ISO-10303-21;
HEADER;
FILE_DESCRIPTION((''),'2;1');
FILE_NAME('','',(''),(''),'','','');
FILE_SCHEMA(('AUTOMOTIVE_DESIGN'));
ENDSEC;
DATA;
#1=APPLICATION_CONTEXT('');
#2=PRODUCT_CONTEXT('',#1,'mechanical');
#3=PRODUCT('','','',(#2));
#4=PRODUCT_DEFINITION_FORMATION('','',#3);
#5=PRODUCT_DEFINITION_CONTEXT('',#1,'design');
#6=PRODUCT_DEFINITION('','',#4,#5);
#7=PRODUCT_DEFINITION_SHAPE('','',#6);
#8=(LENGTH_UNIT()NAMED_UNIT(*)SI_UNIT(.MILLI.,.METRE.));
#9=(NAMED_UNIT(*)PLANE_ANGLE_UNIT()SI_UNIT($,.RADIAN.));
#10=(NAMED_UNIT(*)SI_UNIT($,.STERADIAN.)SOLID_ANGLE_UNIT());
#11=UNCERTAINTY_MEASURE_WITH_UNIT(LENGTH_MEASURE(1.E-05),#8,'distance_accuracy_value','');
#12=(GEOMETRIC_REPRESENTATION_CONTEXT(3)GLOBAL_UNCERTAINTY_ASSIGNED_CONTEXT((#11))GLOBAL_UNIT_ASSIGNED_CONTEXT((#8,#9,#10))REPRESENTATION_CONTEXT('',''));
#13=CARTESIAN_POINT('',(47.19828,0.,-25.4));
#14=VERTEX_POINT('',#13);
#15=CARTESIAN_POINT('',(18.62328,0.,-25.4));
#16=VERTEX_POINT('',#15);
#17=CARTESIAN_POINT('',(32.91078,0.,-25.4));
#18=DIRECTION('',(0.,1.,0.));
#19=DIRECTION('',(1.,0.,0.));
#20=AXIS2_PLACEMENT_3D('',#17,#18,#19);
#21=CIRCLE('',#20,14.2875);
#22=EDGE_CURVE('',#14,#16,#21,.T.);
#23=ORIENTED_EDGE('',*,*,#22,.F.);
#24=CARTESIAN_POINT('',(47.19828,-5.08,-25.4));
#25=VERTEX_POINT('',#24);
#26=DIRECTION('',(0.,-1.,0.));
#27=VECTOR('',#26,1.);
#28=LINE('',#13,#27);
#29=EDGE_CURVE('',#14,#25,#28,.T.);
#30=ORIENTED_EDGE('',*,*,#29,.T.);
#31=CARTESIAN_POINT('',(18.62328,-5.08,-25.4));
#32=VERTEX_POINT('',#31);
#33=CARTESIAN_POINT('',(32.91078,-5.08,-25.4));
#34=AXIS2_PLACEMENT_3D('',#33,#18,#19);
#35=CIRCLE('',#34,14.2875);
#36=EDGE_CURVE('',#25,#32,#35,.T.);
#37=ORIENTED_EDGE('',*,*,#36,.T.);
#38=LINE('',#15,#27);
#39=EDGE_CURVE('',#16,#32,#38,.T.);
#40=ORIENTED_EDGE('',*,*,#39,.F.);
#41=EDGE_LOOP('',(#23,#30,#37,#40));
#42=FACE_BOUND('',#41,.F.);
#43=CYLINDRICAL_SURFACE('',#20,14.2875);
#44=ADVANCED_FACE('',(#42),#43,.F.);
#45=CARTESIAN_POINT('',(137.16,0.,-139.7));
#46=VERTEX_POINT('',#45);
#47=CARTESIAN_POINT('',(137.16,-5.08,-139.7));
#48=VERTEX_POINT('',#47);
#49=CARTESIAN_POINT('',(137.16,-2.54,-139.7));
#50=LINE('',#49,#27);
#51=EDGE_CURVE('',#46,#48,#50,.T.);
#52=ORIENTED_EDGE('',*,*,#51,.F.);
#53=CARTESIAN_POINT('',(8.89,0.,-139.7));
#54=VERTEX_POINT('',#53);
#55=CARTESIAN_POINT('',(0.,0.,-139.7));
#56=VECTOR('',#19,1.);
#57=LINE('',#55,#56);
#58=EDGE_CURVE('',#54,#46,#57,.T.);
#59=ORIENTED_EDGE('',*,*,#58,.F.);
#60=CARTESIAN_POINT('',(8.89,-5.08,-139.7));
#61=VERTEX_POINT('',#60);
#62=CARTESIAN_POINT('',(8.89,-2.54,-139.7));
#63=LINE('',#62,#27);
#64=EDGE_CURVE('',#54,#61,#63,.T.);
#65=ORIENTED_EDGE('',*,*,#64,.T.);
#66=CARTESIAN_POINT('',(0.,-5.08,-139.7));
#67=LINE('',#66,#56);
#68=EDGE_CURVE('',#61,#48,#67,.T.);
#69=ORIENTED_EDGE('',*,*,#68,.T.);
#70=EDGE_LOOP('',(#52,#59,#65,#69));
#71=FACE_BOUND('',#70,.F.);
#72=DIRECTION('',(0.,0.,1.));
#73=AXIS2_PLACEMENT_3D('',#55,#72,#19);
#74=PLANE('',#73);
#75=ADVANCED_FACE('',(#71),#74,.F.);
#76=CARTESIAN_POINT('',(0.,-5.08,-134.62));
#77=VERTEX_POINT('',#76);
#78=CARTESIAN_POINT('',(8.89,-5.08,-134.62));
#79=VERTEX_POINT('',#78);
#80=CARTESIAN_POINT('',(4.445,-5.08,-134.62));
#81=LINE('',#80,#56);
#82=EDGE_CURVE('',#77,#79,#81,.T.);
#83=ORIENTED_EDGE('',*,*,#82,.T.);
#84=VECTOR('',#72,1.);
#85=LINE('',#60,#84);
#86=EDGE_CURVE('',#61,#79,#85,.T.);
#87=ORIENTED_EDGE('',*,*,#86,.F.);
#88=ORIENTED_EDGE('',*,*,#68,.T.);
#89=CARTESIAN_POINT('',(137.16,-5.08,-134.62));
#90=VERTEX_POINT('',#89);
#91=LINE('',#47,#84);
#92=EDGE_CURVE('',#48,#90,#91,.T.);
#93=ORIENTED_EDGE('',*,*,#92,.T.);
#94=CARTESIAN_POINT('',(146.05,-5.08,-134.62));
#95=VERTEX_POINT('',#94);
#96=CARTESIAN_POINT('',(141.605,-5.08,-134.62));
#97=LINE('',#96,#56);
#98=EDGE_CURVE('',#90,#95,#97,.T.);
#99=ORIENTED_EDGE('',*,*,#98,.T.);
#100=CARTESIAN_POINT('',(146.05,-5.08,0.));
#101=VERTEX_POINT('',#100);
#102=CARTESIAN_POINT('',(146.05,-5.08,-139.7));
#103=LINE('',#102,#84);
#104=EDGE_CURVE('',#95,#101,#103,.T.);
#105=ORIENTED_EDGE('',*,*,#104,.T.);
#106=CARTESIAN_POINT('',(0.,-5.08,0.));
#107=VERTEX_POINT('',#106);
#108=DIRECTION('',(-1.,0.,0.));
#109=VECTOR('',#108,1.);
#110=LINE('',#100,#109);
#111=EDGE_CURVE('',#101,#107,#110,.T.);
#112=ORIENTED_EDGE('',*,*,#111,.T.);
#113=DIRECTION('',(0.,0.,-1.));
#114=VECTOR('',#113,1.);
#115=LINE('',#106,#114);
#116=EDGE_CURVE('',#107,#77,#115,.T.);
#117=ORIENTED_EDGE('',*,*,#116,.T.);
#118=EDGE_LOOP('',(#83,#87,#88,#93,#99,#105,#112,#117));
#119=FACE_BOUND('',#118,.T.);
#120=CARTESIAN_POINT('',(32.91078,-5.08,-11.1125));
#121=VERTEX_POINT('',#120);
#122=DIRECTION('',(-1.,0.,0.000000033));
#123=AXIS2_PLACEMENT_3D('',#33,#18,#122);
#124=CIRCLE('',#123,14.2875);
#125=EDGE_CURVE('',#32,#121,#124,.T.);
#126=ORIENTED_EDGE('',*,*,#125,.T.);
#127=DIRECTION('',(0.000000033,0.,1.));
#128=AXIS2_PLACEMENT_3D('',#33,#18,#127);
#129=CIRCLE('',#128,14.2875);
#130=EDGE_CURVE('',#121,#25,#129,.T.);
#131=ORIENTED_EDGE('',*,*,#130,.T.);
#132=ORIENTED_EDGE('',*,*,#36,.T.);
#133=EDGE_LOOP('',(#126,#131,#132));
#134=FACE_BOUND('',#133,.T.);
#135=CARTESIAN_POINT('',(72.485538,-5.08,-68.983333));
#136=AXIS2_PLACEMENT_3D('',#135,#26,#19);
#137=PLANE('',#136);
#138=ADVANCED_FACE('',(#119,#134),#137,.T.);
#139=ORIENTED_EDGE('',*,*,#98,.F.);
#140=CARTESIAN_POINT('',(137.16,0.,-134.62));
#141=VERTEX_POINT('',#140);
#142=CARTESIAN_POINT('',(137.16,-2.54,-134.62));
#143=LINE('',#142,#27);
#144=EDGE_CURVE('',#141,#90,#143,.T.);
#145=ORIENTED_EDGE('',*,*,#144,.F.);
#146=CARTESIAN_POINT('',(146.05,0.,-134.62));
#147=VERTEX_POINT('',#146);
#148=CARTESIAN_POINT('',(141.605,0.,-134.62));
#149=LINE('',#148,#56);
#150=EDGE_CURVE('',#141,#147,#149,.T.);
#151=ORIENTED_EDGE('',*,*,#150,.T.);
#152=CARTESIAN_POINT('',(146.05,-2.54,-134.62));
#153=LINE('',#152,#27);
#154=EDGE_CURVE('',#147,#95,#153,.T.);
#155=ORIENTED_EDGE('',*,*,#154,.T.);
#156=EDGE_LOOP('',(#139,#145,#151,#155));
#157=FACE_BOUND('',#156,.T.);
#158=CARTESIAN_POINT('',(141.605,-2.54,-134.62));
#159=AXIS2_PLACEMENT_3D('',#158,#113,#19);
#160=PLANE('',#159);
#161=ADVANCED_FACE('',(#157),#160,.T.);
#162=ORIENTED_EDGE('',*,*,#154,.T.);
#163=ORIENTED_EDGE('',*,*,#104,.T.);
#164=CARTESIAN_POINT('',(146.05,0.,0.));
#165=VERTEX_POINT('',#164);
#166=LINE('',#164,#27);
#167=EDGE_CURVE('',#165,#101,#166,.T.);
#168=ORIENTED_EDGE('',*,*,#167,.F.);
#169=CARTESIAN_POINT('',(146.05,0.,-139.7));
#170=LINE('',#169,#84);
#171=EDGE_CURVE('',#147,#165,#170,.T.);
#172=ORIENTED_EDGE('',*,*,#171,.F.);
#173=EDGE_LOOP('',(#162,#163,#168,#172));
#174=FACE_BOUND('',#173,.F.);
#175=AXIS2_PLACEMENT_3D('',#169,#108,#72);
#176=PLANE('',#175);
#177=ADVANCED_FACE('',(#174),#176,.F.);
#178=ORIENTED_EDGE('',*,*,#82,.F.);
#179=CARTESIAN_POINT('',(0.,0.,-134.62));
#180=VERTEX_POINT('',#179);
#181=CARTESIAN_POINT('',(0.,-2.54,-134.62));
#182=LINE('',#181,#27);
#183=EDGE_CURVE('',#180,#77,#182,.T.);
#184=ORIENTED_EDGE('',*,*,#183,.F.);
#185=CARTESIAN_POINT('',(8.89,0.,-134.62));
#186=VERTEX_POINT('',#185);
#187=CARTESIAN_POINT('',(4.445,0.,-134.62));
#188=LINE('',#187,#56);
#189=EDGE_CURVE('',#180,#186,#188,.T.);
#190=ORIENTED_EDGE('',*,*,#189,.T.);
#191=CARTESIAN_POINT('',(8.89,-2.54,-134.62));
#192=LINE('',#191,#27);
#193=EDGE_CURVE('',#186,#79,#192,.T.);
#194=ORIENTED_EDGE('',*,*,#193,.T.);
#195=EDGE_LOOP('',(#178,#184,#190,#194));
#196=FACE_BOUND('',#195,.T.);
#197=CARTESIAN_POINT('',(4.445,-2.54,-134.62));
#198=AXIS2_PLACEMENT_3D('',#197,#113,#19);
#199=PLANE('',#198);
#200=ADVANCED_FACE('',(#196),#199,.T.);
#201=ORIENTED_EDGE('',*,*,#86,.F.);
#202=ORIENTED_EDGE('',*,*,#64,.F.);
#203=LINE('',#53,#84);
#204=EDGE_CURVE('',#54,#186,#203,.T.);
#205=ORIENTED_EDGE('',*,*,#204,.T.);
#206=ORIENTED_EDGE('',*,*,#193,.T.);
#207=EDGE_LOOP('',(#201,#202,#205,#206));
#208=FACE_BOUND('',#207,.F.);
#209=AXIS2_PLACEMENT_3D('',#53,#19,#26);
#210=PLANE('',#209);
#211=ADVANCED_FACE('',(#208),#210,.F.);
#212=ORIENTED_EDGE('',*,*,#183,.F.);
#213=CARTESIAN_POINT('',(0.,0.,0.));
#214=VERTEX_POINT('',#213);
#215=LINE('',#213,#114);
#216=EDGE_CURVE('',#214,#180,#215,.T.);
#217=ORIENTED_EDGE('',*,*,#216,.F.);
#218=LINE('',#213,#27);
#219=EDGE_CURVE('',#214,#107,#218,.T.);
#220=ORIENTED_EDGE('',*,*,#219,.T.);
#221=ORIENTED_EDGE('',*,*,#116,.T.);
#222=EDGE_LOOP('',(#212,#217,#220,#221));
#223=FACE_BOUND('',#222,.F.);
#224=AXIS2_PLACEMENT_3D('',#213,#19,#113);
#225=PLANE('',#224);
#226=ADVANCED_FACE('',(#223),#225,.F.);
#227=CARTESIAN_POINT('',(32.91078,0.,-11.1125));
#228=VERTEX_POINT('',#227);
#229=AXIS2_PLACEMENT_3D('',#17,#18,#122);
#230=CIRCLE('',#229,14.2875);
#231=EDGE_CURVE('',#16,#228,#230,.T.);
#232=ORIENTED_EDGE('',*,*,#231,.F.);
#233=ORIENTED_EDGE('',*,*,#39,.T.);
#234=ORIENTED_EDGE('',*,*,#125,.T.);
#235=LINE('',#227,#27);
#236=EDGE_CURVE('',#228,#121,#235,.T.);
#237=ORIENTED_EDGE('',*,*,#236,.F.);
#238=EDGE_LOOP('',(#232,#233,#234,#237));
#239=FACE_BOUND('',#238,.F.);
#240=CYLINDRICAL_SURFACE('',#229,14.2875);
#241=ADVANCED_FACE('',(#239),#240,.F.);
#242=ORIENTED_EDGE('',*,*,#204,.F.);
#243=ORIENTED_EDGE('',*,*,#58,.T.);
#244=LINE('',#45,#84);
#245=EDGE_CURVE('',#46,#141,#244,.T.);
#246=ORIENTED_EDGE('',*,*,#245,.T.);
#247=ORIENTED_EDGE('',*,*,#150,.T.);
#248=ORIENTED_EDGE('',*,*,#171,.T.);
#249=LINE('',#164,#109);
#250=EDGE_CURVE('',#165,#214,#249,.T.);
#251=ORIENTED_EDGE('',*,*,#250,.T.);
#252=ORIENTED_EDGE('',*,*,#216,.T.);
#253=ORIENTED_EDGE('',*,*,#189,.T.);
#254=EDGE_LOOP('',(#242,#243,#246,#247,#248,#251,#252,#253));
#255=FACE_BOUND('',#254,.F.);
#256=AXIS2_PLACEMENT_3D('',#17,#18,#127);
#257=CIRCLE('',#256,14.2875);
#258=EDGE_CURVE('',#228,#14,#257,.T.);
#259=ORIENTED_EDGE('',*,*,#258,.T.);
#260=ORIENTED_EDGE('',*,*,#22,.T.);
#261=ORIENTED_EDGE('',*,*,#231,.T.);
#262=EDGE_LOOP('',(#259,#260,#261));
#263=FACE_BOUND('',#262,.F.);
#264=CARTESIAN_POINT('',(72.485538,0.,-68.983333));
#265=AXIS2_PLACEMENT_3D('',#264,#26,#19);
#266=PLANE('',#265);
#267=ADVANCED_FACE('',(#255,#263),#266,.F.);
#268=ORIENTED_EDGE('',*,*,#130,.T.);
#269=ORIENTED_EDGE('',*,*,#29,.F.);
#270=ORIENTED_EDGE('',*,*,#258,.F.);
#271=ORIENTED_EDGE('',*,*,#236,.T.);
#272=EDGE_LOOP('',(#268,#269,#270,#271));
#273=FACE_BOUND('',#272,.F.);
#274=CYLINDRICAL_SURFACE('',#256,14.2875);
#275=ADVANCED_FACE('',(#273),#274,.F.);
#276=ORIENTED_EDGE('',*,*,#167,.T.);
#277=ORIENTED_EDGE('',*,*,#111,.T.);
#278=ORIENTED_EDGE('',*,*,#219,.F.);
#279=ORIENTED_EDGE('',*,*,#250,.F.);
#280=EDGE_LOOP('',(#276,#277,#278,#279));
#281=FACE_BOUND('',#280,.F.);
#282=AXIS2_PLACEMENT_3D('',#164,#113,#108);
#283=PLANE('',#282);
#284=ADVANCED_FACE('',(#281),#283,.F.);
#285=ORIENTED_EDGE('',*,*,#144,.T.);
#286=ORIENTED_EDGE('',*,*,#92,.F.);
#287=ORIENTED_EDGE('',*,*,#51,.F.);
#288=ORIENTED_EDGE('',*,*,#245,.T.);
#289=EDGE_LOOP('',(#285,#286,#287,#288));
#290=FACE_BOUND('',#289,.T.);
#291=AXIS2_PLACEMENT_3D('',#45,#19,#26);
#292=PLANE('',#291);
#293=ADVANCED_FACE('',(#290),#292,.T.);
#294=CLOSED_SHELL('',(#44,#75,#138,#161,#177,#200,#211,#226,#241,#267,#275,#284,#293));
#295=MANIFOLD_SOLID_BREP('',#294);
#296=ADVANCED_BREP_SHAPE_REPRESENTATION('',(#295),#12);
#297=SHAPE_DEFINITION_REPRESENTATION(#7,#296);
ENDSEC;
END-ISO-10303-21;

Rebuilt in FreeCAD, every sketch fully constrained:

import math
import FreeCAD as App
import Part
import Sketcher

V = App.Vector
Q = App.Units.Quantity


def add_polygon(sketch, points):
    """Adds a closed chain of lines whose ends are joined by coincident constraints."""
    first, n = sketch.GeometryCount, len(points)
    for a, b in zip(points, points[1:] + points[:1]):
        sketch.addGeometry(Part.LineSegment(App.Vector(*a, 0), App.Vector(*b, 0)), False)
    for i in range(n):
        sketch.addConstraint(Sketcher.Constraint("Coincident", first + i, 2, first + (i + 1) % n, 1))

doc = App.newDocument("Part")
params = doc.addObject("Spreadsheet::Sheet", "Params")
for row, (alias, value) in enumerate([
    ("sketch1_height", "5.5 in"),
    ("sketch1_radius", "0.5625 in"),
    ("sketch1_width", "5.75 in"),
    ("pad1_length", "0.2 in"),
    ("sketch2_height", "0.2 in"),
    ("sketch2_width", "0.35 in"),
    ("pocket1_length", "0.2 in"),
], start=1):
    params.set(f"A{row}", alias)
    params.set(f"B{row}", "=" + value)
    params.setAlias(f"B{row}", alias)

body = doc.addObject("PartDesign::Body", "Body")

sketch1 = doc.addObject("Sketcher::SketchObject", "Sketch")
body.addObject(sketch1)
sketch1.AttachmentSupport = (doc.XZ_Plane, [""])
sketch1.MapMode = "FlatFace"
add_polygon(sketch1, [(146, 0), (0, 0), (0, -140), (146, -140)])
sketch1.addGeometry(Part.ArcOfCircle(Part.Circle(V(33, -25, 0), V(0, 0, 1), 14), math.radians(0), math.radians(90)), False)
sketch1.addGeometry(Part.ArcOfCircle(Part.Circle(V(33, -25, 0), V(0, 0, 1), 14), math.radians(180), math.radians(360)), False)
sketch1.addGeometry(Part.ArcOfCircle(Part.Circle(V(33, -25, 0), V(0, 0, 1), 14), math.radians(90), math.radians(180)), False)
sketch1.addConstraint(Sketcher.Constraint("Tangent", 4, 1, 5, 2))
sketch1.addConstraint(Sketcher.Constraint("Tangent", 5, 1, 6, 2))
sketch1.addConstraint(Sketcher.Constraint("Tangent", 6, 1, 4, 2))
sketch1.addConstraint(Sketcher.Constraint("Horizontal", 0))
sketch1.addConstraint(Sketcher.Constraint("Vertical", 1))
sketch1.addConstraint(Sketcher.Constraint("Horizontal", 2))
sketch1.addConstraint(Sketcher.Constraint("Vertical", 3))
sketch1.addConstraint(Sketcher.Constraint("Coincident", 0, 2, -1, 1))
sketch1.addConstraint(Sketcher.Constraint("Horizontal", 6, 3, 4, 1))
sketch1.addConstraint(Sketcher.Constraint("Horizontal", 4, 1, 5, 1))
sketch1.addConstraint(Sketcher.Constraint("Vertical", 5, 3, 6, 1))
sketch1.addConstraint(Sketcher.Constraint("DistanceY", 1, 2, 1, 1, Q("5.5 in")))
sketch1.addConstraint(Sketcher.Constraint("DistanceY", 4, 3, -1, 1, Q("1 in")))
sketch1.addConstraint(Sketcher.Constraint("Radius", 4, Q("0.5625 in")))
sketch1.addConstraint(Sketcher.Constraint("DistanceX", 0, 2, 0, 1, Q("5.75 in")))
sketch1.addConstraint(Sketcher.Constraint("DistanceX", -1, 1, 4, 3, Q("1.2957 in")))
sketch1.setExpression("Constraints[15]", "Params.sketch1_height")
sketch1.setExpression("Constraints[17]", "Params.sketch1_radius")
sketch1.setExpression("Constraints[18]", "Params.sketch1_width")
pad1 = doc.addObject("PartDesign::Pad", "Pad")
body.addObject(pad1)
pad1.Profile = sketch1
pad1.setExpression("Length", "Params.pad1_length")

sketch2 = doc.addObject("Sketcher::SketchObject", "Sketch001")
body.addObject(sketch2)
sketch2.AttachmentSupport = (doc.XY_Plane, [""])
sketch2.MapMode = "FlatFace"
sketch2.AttachmentOffset = App.Placement(V(0, 0, -5.5 * 25.4), App.Rotation())
add_polygon(sketch2, [(0, -5), (0, 0), (9, 0), (9, -5)])
add_polygon(sketch2, [(137, -5), (137, 0), (146, 0), (146, -5)])
sketch2.addConstraint(Sketcher.Constraint("Vertical", 0))
sketch2.addConstraint(Sketcher.Constraint("Horizontal", 1))
sketch2.addConstraint(Sketcher.Constraint("Vertical", 2))
sketch2.addConstraint(Sketcher.Constraint("Horizontal", 3))
sketch2.addConstraint(Sketcher.Constraint("Vertical", 4))
sketch2.addConstraint(Sketcher.Constraint("Horizontal", 5))
sketch2.addConstraint(Sketcher.Constraint("Vertical", 6))
sketch2.addConstraint(Sketcher.Constraint("Horizontal", 7))
sketch2.addConstraint(Sketcher.Constraint("Coincident", 0, 2, -1, 1))
sketch2.addConstraint(Sketcher.Constraint("PointOnObject", 4, 2, -1))
sketch2.addConstraint(Sketcher.Constraint("Horizontal", 3, 2, 6, 2))
sketch2.addConstraint(Sketcher.Constraint("Equal", 3, 5))
sketch2.addConstraint(Sketcher.Constraint("DistanceY", 0, 1, 0, 2, Q("0.2 in")))
sketch2.addConstraint(Sketcher.Constraint("DistanceX", 1, 1, 1, 2, Q("0.35 in")))
sketch2.addConstraint(Sketcher.Constraint("DistanceX", -1, 1, 4, 2, Q("5.4 in")))
sketch2.setExpression("Constraints[20]", "Params.sketch2_height")
sketch2.setExpression("Constraints[21]", "Params.sketch2_width")
pocket1 = doc.addObject("PartDesign::Pocket", "Pocket")
body.addObject(pocket1)
pocket1.Profile = sketch2
pocket1.setExpression("Length", "Params.pocket1_length")
pocket1.Reversed = True

doc.recompute()
